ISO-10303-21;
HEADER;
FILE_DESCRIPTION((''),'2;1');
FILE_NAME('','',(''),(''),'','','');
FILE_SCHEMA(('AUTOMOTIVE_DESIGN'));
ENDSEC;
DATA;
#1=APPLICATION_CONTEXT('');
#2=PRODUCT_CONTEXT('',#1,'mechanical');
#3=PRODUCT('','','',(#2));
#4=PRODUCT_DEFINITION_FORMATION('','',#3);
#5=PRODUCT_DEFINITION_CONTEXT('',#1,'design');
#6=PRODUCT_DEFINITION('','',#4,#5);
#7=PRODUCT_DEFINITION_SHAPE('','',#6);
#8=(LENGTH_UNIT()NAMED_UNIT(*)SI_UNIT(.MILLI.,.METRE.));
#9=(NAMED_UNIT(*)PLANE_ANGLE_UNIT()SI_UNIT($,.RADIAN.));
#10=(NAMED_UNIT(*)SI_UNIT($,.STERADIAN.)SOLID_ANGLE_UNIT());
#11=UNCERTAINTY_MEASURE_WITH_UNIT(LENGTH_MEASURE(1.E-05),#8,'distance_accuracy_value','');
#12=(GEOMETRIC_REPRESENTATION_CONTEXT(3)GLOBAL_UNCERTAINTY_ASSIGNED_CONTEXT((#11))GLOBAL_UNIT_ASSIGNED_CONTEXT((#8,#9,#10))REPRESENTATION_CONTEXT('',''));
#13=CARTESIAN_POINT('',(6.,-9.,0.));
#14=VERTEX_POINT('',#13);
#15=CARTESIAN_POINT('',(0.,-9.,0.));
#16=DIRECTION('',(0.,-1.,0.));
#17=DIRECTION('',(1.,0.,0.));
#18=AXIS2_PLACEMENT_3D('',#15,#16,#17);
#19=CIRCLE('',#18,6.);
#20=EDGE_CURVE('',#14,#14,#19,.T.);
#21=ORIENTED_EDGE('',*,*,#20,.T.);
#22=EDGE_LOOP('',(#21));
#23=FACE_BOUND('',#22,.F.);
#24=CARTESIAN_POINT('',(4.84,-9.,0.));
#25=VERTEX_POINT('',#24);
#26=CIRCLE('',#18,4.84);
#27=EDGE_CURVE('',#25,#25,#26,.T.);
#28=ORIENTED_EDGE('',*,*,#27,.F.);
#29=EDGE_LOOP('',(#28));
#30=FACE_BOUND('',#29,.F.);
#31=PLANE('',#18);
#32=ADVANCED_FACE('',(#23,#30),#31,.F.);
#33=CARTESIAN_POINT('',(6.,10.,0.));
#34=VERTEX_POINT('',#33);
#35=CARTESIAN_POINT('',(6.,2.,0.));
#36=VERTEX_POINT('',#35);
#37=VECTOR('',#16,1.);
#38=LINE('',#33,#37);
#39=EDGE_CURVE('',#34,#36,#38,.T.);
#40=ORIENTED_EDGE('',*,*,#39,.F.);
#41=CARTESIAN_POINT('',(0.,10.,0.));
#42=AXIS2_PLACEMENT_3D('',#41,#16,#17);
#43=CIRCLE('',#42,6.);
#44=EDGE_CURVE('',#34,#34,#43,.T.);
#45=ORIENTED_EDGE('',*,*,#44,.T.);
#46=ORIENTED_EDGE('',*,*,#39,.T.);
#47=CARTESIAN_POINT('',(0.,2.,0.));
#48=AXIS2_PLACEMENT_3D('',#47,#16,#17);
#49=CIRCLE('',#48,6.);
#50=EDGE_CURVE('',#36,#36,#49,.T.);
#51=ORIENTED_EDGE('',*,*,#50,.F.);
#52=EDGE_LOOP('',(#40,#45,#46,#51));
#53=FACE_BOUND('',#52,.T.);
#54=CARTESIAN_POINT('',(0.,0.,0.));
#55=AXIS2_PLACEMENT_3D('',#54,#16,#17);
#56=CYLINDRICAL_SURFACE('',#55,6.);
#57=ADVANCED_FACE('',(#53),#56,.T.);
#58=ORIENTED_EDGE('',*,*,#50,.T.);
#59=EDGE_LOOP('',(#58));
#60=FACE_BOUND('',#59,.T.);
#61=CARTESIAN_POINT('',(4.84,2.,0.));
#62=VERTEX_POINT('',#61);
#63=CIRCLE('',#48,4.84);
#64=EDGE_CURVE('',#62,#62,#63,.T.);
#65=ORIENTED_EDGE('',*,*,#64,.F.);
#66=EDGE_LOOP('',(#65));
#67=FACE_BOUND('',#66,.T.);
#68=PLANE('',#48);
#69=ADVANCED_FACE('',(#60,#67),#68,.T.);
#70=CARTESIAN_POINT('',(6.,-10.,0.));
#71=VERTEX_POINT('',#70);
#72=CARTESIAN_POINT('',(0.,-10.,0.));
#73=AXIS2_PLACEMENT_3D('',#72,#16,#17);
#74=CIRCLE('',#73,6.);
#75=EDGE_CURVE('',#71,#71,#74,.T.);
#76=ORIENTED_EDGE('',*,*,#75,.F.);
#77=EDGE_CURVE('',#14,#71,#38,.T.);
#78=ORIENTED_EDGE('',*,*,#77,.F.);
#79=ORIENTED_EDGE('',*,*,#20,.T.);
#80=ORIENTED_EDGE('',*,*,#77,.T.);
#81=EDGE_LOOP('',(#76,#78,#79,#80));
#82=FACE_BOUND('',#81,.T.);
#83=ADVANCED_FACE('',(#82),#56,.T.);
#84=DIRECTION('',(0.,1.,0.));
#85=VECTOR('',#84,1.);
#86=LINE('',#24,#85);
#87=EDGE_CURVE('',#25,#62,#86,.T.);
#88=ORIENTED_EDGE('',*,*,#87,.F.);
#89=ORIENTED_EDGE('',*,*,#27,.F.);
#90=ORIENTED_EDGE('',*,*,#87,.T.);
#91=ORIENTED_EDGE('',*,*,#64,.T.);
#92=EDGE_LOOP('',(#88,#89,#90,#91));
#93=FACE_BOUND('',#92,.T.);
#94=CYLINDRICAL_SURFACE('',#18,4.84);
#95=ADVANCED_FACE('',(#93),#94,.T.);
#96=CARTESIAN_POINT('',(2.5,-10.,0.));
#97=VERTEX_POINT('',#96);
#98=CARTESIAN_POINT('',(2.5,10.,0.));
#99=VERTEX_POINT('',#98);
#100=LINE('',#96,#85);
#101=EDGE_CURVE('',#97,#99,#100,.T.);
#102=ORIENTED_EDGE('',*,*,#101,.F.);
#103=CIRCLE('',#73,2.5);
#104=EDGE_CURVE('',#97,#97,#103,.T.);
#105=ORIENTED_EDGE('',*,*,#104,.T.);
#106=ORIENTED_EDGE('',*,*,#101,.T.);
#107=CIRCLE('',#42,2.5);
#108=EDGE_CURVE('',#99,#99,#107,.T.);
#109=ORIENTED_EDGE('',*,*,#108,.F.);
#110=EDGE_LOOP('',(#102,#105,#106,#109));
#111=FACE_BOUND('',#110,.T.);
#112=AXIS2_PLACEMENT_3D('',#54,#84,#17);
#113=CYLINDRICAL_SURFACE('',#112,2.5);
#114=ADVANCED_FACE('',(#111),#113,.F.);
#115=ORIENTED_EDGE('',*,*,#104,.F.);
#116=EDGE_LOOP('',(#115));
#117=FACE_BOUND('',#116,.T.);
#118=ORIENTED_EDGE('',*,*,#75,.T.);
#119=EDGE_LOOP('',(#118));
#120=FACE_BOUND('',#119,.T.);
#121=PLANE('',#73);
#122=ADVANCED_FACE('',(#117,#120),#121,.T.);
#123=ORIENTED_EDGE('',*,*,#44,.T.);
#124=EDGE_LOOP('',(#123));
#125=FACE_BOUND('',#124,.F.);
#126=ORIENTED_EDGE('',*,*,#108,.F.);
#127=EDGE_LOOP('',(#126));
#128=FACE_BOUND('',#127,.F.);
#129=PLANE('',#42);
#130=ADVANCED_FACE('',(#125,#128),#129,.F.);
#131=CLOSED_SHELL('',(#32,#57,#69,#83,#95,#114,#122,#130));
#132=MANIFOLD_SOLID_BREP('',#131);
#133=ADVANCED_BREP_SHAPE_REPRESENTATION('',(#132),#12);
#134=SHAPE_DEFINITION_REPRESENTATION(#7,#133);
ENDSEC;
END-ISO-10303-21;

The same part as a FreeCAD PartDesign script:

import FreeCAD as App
import Part
import Sketcher
Q = App.Units.Quantity

doc = App.newDocument("Part")
body = doc.addObject("PartDesign::Body", "Body")

sketch1 = body.newObject("Sketcher::SketchObject", "Sketch")
sketch1.AttachmentSupport = (doc.getObject("XZ_Plane"), [""])
sketch1.MapMode = "FlatFace"
sketch1.addGeometry([
    Part.Circle(App.Vector(0, 0, 0), App.Vector(0, 0, 1), 6),
    Part.Circle(App.Vector(0, 0, 0), App.Vector(0, 0, 1), 2.5),
], False)
sketch1.addConstraint([
    Sketcher.Constraint("Coincident", 0, 3, -1, 1),
    Sketcher.Constraint("Coincident", 1, 3, -1, 1),
    Sketcher.Constraint("Diameter", 0, Q("12 mm")),
    Sketcher.Constraint("Diameter", 1, Q("5 mm")),
])
pad1 = body.newObject("PartDesign::Pad", "Pad")
pad1.Profile = sketch1
pad1.Length = 20
pad1.Midplane = True

sketch2 = body.newObject("Sketcher::SketchObject", "Sketch001")
sketch2.AttachmentSupport = (doc.getObject("XZ_Plane"), [""])
sketch2.MapMode = "FlatFace"
sketch2.AttachmentOffset = App.Placement(App.Vector(0, 0, 9), App.Rotation())
sketch2.addGeometry([
    Part.Circle(App.Vector(0, 0, 0), App.Vector(0, 0, 1), 7),
    Part.Circle(App.Vector(0, 0, 0), App.Vector(0, 0, 1), 4.8),
], False)
sketch2.addConstraint([
    Sketcher.Constraint("Coincident", 0, 3, -1, 1),
    Sketcher.Constraint("Coincident", 1, 3, -1, 1),
    Sketcher.Constraint("Diameter", 0, Q("14 mm")),
    Sketcher.Constraint("Diameter", 1, Q("9.68 mm")),
])
pocket1 = body.newObject("PartDesign::Pocket", "Pocket")
pocket1.Profile = sketch2
pocket1.Length = 11

doc.recompute()
